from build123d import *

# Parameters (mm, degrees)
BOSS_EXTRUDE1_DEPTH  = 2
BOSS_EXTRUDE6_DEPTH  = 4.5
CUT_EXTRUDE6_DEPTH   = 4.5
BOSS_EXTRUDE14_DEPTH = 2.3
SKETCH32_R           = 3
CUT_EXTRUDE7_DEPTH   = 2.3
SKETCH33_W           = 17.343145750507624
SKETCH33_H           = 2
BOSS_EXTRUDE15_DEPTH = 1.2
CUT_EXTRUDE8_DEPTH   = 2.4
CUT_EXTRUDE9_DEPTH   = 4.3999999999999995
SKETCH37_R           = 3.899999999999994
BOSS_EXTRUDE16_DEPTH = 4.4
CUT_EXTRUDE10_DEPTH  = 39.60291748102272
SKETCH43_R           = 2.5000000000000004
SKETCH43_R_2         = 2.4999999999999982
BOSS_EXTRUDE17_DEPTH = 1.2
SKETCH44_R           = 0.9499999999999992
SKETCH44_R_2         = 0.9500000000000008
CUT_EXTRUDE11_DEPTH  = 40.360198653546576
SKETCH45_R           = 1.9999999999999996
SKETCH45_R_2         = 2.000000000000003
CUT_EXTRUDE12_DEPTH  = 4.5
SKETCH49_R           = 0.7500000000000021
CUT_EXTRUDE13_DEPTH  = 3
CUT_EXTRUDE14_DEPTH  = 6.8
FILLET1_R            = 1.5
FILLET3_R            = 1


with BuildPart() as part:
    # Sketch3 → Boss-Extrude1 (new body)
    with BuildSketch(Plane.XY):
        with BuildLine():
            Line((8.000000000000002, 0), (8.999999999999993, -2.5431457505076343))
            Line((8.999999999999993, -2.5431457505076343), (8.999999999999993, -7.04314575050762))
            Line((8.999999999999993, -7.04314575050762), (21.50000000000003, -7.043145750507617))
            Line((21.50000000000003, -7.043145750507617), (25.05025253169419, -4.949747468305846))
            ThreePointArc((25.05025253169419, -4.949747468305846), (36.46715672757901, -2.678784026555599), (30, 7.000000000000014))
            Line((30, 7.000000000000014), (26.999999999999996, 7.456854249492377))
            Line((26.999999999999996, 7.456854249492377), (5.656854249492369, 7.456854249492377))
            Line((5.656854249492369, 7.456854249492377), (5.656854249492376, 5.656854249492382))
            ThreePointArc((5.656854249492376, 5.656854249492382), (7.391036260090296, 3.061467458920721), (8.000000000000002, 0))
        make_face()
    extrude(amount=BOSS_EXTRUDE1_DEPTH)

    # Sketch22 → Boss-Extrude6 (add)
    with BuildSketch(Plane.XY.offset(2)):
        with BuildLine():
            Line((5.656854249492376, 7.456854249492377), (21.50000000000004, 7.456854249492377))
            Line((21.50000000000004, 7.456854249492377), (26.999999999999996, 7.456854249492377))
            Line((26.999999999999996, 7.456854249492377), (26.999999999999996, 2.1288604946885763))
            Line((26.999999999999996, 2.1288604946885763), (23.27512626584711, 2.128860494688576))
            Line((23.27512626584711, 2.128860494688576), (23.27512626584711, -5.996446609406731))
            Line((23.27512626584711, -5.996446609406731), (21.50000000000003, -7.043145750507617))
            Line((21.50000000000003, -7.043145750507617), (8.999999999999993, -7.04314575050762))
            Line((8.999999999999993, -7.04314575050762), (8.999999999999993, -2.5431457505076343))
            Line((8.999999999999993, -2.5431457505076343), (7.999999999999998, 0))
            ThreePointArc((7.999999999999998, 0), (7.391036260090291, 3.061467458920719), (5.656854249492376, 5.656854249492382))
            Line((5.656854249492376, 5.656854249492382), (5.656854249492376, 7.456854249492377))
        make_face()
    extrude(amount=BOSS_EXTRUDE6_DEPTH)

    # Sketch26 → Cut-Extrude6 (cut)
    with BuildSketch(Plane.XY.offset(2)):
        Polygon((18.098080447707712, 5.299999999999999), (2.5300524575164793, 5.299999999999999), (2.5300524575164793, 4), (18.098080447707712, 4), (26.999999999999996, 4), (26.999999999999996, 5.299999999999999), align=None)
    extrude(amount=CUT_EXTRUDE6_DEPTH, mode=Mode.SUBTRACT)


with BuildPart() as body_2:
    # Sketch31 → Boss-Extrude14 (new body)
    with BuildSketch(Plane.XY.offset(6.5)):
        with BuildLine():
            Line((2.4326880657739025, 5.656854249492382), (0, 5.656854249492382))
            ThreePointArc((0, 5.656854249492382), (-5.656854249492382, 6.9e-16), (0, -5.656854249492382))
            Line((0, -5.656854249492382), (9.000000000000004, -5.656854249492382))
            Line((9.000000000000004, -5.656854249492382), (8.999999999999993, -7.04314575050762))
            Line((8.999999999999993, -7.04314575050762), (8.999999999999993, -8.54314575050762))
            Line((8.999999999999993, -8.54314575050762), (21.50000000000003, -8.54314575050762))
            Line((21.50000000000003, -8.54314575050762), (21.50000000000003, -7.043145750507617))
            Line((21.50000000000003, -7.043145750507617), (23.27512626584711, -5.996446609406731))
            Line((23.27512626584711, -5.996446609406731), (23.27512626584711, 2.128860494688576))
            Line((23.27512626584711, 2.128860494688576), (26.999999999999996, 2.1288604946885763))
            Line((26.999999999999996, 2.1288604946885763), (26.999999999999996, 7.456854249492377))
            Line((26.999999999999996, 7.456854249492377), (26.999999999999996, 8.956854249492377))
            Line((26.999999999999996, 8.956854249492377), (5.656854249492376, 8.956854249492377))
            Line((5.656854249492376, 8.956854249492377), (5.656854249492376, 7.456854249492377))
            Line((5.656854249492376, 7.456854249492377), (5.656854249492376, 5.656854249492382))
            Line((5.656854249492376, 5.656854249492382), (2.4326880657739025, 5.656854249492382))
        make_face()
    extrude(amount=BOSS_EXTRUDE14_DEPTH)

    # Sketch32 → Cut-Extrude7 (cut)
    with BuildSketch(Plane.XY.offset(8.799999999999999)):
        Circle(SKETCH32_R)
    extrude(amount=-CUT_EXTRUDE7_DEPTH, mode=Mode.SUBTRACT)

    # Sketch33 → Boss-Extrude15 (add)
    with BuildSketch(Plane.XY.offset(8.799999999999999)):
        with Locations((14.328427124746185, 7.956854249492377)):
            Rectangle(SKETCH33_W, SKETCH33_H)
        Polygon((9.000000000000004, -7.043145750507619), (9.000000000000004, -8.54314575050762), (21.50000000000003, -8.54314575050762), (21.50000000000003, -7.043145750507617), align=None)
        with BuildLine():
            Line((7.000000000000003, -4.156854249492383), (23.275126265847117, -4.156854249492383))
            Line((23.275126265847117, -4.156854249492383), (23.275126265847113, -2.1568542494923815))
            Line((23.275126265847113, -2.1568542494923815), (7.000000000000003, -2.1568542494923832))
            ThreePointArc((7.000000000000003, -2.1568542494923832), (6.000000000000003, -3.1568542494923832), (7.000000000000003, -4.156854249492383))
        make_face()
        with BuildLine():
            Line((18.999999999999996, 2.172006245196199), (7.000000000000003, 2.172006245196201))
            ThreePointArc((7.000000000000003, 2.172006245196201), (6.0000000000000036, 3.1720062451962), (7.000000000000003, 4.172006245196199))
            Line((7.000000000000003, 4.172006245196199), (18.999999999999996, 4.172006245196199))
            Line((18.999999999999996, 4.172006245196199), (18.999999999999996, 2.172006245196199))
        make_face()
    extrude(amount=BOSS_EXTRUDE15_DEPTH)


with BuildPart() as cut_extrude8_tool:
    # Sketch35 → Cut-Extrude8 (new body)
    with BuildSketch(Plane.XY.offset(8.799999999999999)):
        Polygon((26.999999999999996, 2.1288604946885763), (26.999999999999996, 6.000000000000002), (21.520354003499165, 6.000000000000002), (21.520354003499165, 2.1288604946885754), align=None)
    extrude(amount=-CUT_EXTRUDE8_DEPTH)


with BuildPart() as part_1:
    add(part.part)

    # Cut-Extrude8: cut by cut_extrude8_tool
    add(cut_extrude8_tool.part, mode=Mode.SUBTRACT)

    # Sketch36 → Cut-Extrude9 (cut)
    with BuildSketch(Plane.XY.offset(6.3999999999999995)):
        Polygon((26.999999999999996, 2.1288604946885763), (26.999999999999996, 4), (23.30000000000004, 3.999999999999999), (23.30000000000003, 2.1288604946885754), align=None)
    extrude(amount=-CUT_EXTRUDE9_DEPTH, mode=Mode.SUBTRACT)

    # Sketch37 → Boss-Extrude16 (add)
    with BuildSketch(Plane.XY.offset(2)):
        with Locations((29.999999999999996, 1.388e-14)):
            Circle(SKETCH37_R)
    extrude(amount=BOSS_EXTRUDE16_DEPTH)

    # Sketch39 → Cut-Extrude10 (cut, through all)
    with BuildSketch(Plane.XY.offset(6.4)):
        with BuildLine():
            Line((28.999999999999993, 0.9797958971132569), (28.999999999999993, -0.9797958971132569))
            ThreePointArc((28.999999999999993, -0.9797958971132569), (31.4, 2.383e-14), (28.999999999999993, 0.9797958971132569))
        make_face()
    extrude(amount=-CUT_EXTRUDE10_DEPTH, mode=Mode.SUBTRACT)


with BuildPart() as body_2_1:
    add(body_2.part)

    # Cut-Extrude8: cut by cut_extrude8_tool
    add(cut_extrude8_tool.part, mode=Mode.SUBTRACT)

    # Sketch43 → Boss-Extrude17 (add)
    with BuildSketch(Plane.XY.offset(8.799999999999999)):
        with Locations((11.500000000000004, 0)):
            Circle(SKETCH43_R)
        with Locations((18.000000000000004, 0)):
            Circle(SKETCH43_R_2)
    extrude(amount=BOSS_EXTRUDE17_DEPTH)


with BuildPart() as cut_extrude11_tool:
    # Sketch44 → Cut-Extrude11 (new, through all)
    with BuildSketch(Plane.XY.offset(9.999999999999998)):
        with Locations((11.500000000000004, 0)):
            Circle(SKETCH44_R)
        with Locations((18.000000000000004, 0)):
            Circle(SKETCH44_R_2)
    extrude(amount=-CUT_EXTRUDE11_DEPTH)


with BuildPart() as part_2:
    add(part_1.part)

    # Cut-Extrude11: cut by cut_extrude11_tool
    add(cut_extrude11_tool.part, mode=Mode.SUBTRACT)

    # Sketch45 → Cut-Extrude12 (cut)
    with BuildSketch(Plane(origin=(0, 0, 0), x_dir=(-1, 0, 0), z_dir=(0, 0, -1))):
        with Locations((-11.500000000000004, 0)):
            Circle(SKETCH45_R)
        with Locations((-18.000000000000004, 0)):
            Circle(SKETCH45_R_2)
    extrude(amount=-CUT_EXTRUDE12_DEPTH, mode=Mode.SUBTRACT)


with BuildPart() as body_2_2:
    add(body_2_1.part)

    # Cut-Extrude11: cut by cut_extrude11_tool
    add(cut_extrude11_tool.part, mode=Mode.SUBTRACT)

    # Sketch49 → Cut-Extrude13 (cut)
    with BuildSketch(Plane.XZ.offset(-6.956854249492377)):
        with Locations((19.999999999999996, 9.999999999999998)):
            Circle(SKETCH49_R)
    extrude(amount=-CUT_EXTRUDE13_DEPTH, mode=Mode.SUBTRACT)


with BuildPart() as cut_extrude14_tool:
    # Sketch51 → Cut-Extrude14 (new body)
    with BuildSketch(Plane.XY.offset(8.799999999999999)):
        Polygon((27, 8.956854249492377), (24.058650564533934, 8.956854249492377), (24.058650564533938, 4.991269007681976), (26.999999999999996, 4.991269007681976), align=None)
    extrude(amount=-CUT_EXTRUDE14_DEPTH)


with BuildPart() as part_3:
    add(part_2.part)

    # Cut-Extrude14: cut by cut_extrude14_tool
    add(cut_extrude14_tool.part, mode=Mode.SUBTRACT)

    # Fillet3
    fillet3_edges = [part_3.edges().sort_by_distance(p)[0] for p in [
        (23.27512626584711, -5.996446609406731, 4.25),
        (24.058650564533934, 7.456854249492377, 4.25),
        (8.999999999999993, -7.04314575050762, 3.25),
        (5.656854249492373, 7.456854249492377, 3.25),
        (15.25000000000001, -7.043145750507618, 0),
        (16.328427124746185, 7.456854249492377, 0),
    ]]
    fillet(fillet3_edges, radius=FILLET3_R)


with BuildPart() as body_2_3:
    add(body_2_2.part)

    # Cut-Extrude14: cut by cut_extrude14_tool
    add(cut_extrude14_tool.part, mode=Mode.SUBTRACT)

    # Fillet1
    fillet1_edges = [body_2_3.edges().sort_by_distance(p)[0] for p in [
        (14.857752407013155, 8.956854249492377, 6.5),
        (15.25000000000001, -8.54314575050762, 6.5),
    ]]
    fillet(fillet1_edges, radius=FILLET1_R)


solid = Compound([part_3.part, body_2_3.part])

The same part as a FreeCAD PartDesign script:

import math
import FreeCAD as App
import Part
import Sketcher

V = App.Vector


def edges_at(feature, points):
    """Names of the edges that pass closest to the given points."""
    edges = feature.Shape.Edges
    near = lambda p: min(range(len(edges)), key=lambda i: edges[i].distToShape(Part.Vertex(*p))[0])
    return sorted({f"Edge{near(p) + 1}" for p in points})

doc = App.newDocument("Part")
body = doc.addObject("PartDesign::Body", "Body")

sketch1 = doc.addObject("Sketcher::SketchObject", "Sketch")
body.addObject(sketch1)
sketch1.AttachmentSupport = (doc.XY_Plane, [""])
sketch1.MapMode = "FlatFace"
sketch1.addGeometry(Part.LineSegment(V(8, 0, 0), V(9, -2.5, 0)), False)
sketch1.addGeometry(Part.LineSegment(V(9, -2.5, 0), V(9, -7, 0)), False)
sketch1.addGeometry(Part.LineSegment(V(9, -7, 0), V(21.5, -7, 0)), False)
sketch1.addGeometry(Part.LineSegment(V(21.5, -7, 0), V(25.1, -4.9, 0)), False)
sketch1.addGeometry(Part.ArcOfCircle(Part.Circle(V(30, 0, 0), V(0, 0, 1), 7), math.radians(-135), math.radians(90)), False)
sketch1.addGeometry(Part.LineSegment(V(30, 7, 0), V(27, 7.5, 0)), False)
sketch1.addGeometry(Part.LineSegment(V(27, 7.5, 0), V(5.7, 7.5, 0)), False)
sketch1.addGeometry(Part.LineSegment(V(5.7, 7.5, 0), V(5.7, 5.7, 0)), False)
sketch1.addGeometry(Part.ArcOfCircle(Part.Circle(V(0, 0, 0), V(0, 0, 1), 8), math.radians(0), math.radians(45)), False)
sketch1.addConstraint(Sketcher.Constraint("Coincident", 0, 2, 1, 1))
sketch1.addConstraint(Sketcher.Constraint("Coincident", 1, 2, 2, 1))
sketch1.addConstraint(Sketcher.Constraint("Coincident", 2, 2, 3, 1))
sketch1.addConstraint(Sketcher.Constraint("Coincident", 3, 2, 4, 1))
sketch1.addConstraint(Sketcher.Constraint("Coincident", 4, 2, 5, 1))
sketch1.addConstraint(Sketcher.Constraint("Coincident", 5, 2, 6, 1))
sketch1.addConstraint(Sketcher.Constraint("Coincident", 6, 2, 7, 1))
sketch1.addConstraint(Sketcher.Constraint("Coincident", 7, 2, 8, 2))
sketch1.addConstraint(Sketcher.Constraint("Coincident", 8, 1, 0, 1))
sketch1.addConstraint(Sketcher.Constraint("Vertical", 1))
sketch1.addConstraint(Sketcher.Constraint("Horizontal", 2))
sketch1.addConstraint(Sketcher.Constraint("Horizontal", 6))
sketch1.addConstraint(Sketcher.Constraint("Vertical", 7))
sketch1.addConstraint(Sketcher.Constraint("Coincident", 8, 3, -1, 1))
sketch1.addConstraint(Sketcher.Constraint("PointOnObject", 4, 3, -1))
sketch1.addConstraint(Sketcher.Constraint("PointOnObject", 8, 1, -1))
sketch1.addConstraint(Sketcher.Constraint("Radius", 4, 7.0))
sketch1.addConstraint(Sketcher.Constraint("Radius", 8, 8.0))
sketch1.addConstraint(Sketcher.Constraint("DistanceX", 2, 1, 2, 2, 12.5))
sketch1.addConstraint(Sketcher.Constraint("DistanceY", 1, 2, 1, 1, 4.5))
sketch1.addConstraint(Sketcher.Constraint("DistanceY", 7, 2, 7, 1, 1.8))
sketch1.addConstraint(Sketcher.Constraint("DistanceX", -1, 1, 4, 3, 30.0))
sketch1.addConstraint(Sketcher.Constraint("DistanceX", -1, 1, 0, 2, 9.0))
sketch1.addConstraint(Sketcher.Constraint("DistanceX", -1, 1, 4, 2, 30.0))
sketch1.addConstraint(Sketcher.Constraint("DistanceX", -1, 1, 5, 2, 27.0))
sketch1.addConstraint(Sketcher.Constraint("DistanceY", 0, 2, 5, 2, 10.0))
sketch1.addConstraint(Sketcher.Constraint("DistanceY", 2, 2, 3, 2, 2.093398))
sketch1.addConstraint(Sketcher.Constraint("Distance", 0, 2.732689))
pad1 = doc.addObject("PartDesign::Pad", "Pad")
body.addObject(pad1)
pad1.Profile = sketch1
pad1.Length = 2

sketch2 = doc.addObject("Sketcher::SketchObject", "Sketch001")
body.addObject(sketch2)
sketch2.AttachmentSupport = (doc.XY_Plane, [""])
sketch2.MapMode = "FlatFace"
sketch2.AttachmentOffset = App.Placement(V(0, 0, 2), App.Rotation())
sketch2.addGeometry(Part.LineSegment(V(27, 7.5, 0), V(5.7, 7.5, 0)), False)
sketch2.addGeometry(Part.LineSegment(V(5.7, 7.5, 0), V(5.7, 5.7, 0)), False)
sketch2.addGeometry(Part.ArcOfCircle(Part.Circle(V(0, 0, 0), V(0, 0, 1), 8), math.radians(0), math.radians(45)), False)
sketch2.addGeometry(Part.LineSegment(V(8, 0, 0), V(9, -2.5, 0)), False)
sketch2.addGeometry(Part.LineSegment(V(9, -2.5, 0), V(9, -7, 0)), False)
sketch2.addGeometry(Part.LineSegment(V(9, -7, 0), V(21.5, -7, 0)), False)
sketch2.addGeometry(Part.LineSegment(V(21.5, -7, 0), V(23.3, -6, 0)), False)
sketch2.addGeometry(Part.LineSegment(V(23.3, -6, 0), V(23.3, 2.1, 0)), False)
sketch2.addGeometry(Part.LineSegment(V(23.3, 2.1, 0), V(27, 2.1, 0)), False)
sketch2.addGeometry(Part.LineSegment(V(27, 2.1, 0), V(27, 7.5, 0)), False)
sketch2.addConstraint(Sketcher.Constraint("Coincident", 0, 2, 1, 1))
sketch2.addConstraint(Sketcher.Constraint("Coincident", 1, 2, 2, 2))
sketch2.addConstraint(Sketcher.Constraint("Coincident", 2, 1, 3, 1))
sketch2.addConstraint(Sketcher.Constraint("Coincident", 3, 2, 4, 1))
sketch2.addConstraint(Sketcher.Constraint("Coincident", 4, 2, 5, 1))
sketch2.addConstraint(Sketcher.Constraint("Coincident", 5, 2, 6, 1))
sketch2.addConstraint(Sketcher.Constraint("Coincident", 6, 2, 7, 1))
sketch2.addConstraint(Sketcher.Constraint("Coincident", 7, 2, 8, 1))
sketch2.addConstraint(Sketcher.Constraint("Coincident", 8, 2, 9, 1))
sketch2.addConstraint(Sketcher.Constraint("Coincident", 9, 2, 0, 1))
sketch2.addConstraint(Sketcher.Constraint("Horizontal", 0))
sketch2.addConstraint(Sketcher.Constraint("Vertical", 1))
sketch2.addConstraint(Sketcher.Constraint("Vertical", 4))
sketch2.addConstraint(Sketcher.Constraint("Horizontal", 5))
sketch2.addConstraint(Sketcher.Constraint("Vertical", 7))
sketch2.addConstraint(Sketcher.Constraint("Horizontal", 8))
sketch2.addConstraint(Sketcher.Constraint("Vertical", 9))
sketch2.addConstraint(Sketcher.Constraint("Coincident", 2, 3, -1, 1))
sketch2.addConstraint(Sketcher.Constraint("PointOnObject", 2, 1, -1))
sketch2.addConstraint(Sketcher.Constraint("Radius", 2, 8.0))
sketch2.addConstraint(Sketcher.Constraint("DistanceX", 5, 1, 5, 2, 12.5))
sketch2.addConstraint(Sketcher.Constraint("DistanceY", 1, 2, 1, 1, 1.8))
sketch2.addConstraint(Sketcher.Constraint("DistanceY", 4, 2, 4, 1, 4.5))
sketch2.addConstraint(Sketcher.Constraint("DistanceX", -1, 1, 3, 2, 9.0))
sketch2.addConstraint(Sketcher.Constraint("DistanceX", -1, 1, 8, 2, 27.0))
sketch2.addConstraint(Sketcher.Constraint("DistanceY", 3, 2, 0, 2, 10.0))
sketch2.addConstraint(Sketcher.Constraint("DistanceY", 5, 2, 6, 2, 1.046699))
sketch2.addConstraint(Sketcher.Constraint("Distance", 3, 2.732689))
sketch2.addConstraint(Sketcher.Constraint("Distance", 6, 2.060741))
sketch2.addConstraint(Sketcher.Constraint("DistanceY", 7, 1, 7, 2, 8.125307))
pad2 = doc.addObject("PartDesign::Pad", "Pad001")
body.addObject(pad2)
pad2.Profile = sketch2
pad2.Length = 4.5

sketch3 = doc.addObject("Sketcher::SketchObject", "Sketch002")
body.addObject(sketch3)
sketch3.AttachmentSupport = (doc.XY_Plane, [""])
sketch3.MapMode = "FlatFace"
sketch3.AttachmentOffset = App.Placement(V(0, 0, 2), App.Rotation())
sketch3.addGeometry(Part.LineSegment(V(2.5, 5.3, 0), V(2.5, 4, 0)), False)
sketch3.addGeometry(Part.LineSegment(V(2.5, 4, 0), V(27, 4, 0)), False)
sketch3.addGeometry(Part.LineSegment(V(27, 4, 0), V(27, 5.3, 0)), False)
sketch3.addGeometry(Part.LineSegment(V(27, 5.3, 0), V(2.5, 5.3, 0)), False)
sketch3.addConstraint(Sketcher.Constraint("Coincident", 0, 2, 1, 1))
sketch3.addConstraint(Sketcher.Constraint("Coincident", 1, 2, 2, 1))
sketch3.addConstraint(Sketcher.Constraint("Coincident", 2, 2, 3, 1))
sketch3.addConstraint(Sketcher.Constraint("Coincident", 3, 2, 0, 1))
sketch3.addConstraint(Sketcher.Constraint("Vertical", 0))
sketch3.addConstraint(Sketcher.Constraint("Horizontal", 1))
sketch3.addConstraint(Sketcher.Constraint("Vertical", 2))
sketch3.addConstraint(Sketcher.Constraint("Horizontal", 3))
sketch3.addConstraint(Sketcher.Constraint("DistanceY", 0, 2, 0, 1, 1.3))
sketch3.addConstraint(Sketcher.Constraint("DistanceY", -1, 1, 0, 2, 4.0))
sketch3.addConstraint(Sketcher.Constraint("DistanceX", -1, 1, 1, 2, 27.0))
sketch3.addConstraint(Sketcher.Constraint("DistanceX", 1, 1, 1, 2, 24.469948))
pocket1 = doc.addObject("PartDesign::Pocket", "Pocket")
body.addObject(pocket1)
pocket1.Profile = sketch3
pocket1.Length = 4.5
pocket1.Reversed = True
body2 = doc.addObject("PartDesign::Body", "Body001")

sketch4 = doc.addObject("Sketcher::SketchObject", "Sketch003")
body2.addObject(sketch4)
sketch4.AttachmentSupport = (doc.getObject("XY_Plane001"), [""])
sketch4.MapMode = "FlatFace"
sketch4.AttachmentOffset = App.Placement(V(0, 0, 6.5), App.Rotation())
sketch4.addGeometry(Part.ArcOfCircle(Part.Circle(V(0, 0, 0), V(0, 0, 1), 5.7), math.radians(90), math.radians(270)), False)
sketch4.addGeometry(Part.LineSegment(V(0, -5.7, 0), V(9, -5.7, 0)), False)
sketch4.addGeometry(Part.LineSegment(V(9, -5.7, 0), V(9, -8.5, 0)), False)
sketch4.addGeometry(Part.LineSegment(V(9, -8.5, 0), V(21.5, -8.5, 0)), False)
sketch4.addGeometry(Part.LineSegment(V(21.5, -8.5, 0), V(21.5, -7, 0)), False)
sketch4.addGeometry(Part.LineSegment(V(21.5, -7, 0), V(23.3, -6, 0)), False)
sketch4.addGeometry(Part.LineSegment(V(23.3, -6, 0), V(23.3, 2.1, 0)), False)
sketch4.addGeometry(Part.LineSegment(V(23.3, 2.1, 0), V(27, 2.1, 0)), False)
sketch4.addGeometry(Part.LineSegment(V(27, 2.1, 0), V(27, 9, 0)), False)
sketch4.addGeometry(Part.LineSegment(V(27, 9, 0), V(5.7, 9, 0)), False)
sketch4.addGeometry(Part.LineSegment(V(5.7, 9, 0), V(5.7, 5.7, 0)), False)
sketch4.addGeometry(Part.LineSegment(V(5.7, 5.7, 0), V(0, 5.7, 0)), False)
sketch4.addConstraint(Sketcher.Constraint("Tangent", 0, 2, 1, 1))
sketch4.addConstraint(Sketcher.Constraint("Coincident", 1, 2, 2, 1))
sketch4.addConstraint(Sketcher.Constraint("Coincident", 2, 2, 3, 1))
sketch4.addConstraint(Sketcher.Constraint("Coincident", 3, 2, 4, 1))
sketch4.addConstraint(Sketcher.Constraint("Coincident", 4, 2, 5, 1))
sketch4.addConstraint(Sketcher.Constraint("Coincident", 5, 2, 6, 1))
sketch4.addConstraint(Sketcher.Constraint("Coincident", 6, 2, 7, 1))
sketch4.addConstraint(Sketcher.Constraint("Coincident", 7, 2, 8, 1))
sketch4.addConstraint(Sketcher.Constraint("Coincident", 8, 2, 9, 1))
sketch4.addConstraint(Sketcher.Constraint("Coincident", 9, 2, 10, 1))
sketch4.addConstraint(Sketcher.Constraint("Coincident", 10, 2, 11, 1))
sketch4.addConstraint(Sketcher.Constraint("Tangent", 11, 2, 0, 1))
sketch4.addConstraint(Sketcher.Constraint("Horizontal", 1))
sketch4.addConstraint(Sketcher.Constraint("Vertical", 2))
sketch4.addConstraint(Sketcher.Constraint("Horizontal", 3))
sketch4.addConstraint(Sketcher.Constraint("Vertical", 4))
sketch4.addConstraint(Sketcher.Constraint("Vertical", 6))
sketch4.addConstraint(Sketcher.Constraint("Horizontal", 7))
sketch4.addConstraint(Sketcher.Constraint("Vertical", 8))
sketch4.addConstraint(Sketcher.Constraint("Horizontal", 9))
sketch4.addConstraint(Sketcher.Constraint("Vertical", 10))
sketch4.addConstraint(Sketcher.Constraint("Horizontal", 11))
sketch4.addConstraint(Sketcher.Constraint("Coincident", 0, 3, -1, 1))
sketch4.addConstraint(Sketcher.Constraint("DistanceX", 1, 1, 1, 2, 9.0))
sketch4.addConstraint(Sketcher.Constraint("DistanceX", 3, 1, 3, 2, 12.5))
sketch4.addConstraint(Sketcher.Constraint("DistanceY", 4, 1, 4, 2, 1.5))
sketch4.addConstraint(Sketcher.Constraint("DistanceY", 10, 2, 10, 1, 3.3))
sketch4.addConstraint(Sketcher.Constraint("DistanceX", -1, 1, 7, 2, 27.0))
sketch4.addConstraint(Sketcher.Constraint("DistanceY", 4, 2, 8, 2, 16.0))
sketch4.addConstraint(Sketcher.Constraint("Radius", 0, 5.656854))
sketch4.addConstraint(Sketcher.Constraint("DistanceY", 4, 2, 5, 2, 1.046699))
sketch4.addConstraint(Sketcher.Constraint("Distance", 5, 2.060741))
sketch4.addConstraint(Sketcher.Constraint("DistanceX", 9, 2, 9, 1, 21.343146))
sketch4.addConstraint(Sketcher.Constraint("DistanceY", 6, 1, 6, 2, 8.125307))
pad3 = doc.addObject("PartDesign::Pad", "Pad002")
body2.addObject(pad3)
pad3.Profile = sketch4
pad3.Length = 2.3

sketch5 = doc.addObject("Sketcher::SketchObject", "Sketch004")
body2.addObject(sketch5)
sketch5.AttachmentSupport = (doc.getObject("XY_Plane001"), [""])
sketch5.MapMode = "FlatFace"
sketch5.AttachmentOffset = App.Placement(V(0, 0, 8.8), App.Rotation())
sketch5.addGeometry(Part.Circle(V(0, 0, 0), V(0, 0, 1), 3), False)
sketch5.addConstraint(Sketcher.Constraint("Coincident", 0, 3, -1, 1))
sketch5.addConstraint(Sketcher.Constraint("Diameter", 0, 6.0))
pocket2 = doc.addObject("PartDesign::Pocket", "Pocket001")
body2.addObject(pocket2)
pocket2.Profile = sketch5
pocket2.Length = 2.3

sketch6 = doc.addObject("Sketcher::SketchObject", "Sketch005")
body2.addObject(sketch6)
sketch6.AttachmentSupport = (doc.getObject("XY_Plane001"), [""])
sketch6.MapMode = "FlatFace"
sketch6.AttachmentOffset = App.Placement(V(0, 0, 8.8), App.Rotation())
sketch6.addGeometry(Part.LineSegment(V(5.7, 9, 0), V(5.7, 7, 0)), False)
sketch6.addGeometry(Part.LineSegment(V(5.7, 7, 0), V(23, 7, 0)), False)
sketch6.addGeometry(Part.LineSegment(V(23, 7, 0), V(23, 9, 0)), False)
sketch6.addGeometry(Part.LineSegment(V(23, 9, 0), V(5.7, 9, 0)), False)
sketch6.addGeometry(Part.LineSegment(V(9, -7, 0), V(9, -8.5, 0)), False)
sketch6.addGeometry(Part.LineSegment(V(9, -8.5, 0), V(21.5, -8.5, 0)), False)
sketch6.addGeometry(Part.LineSegment(V(21.5, -8.5, 0), V(21.5, -7, 0)), False)
sketch6.addGeometry(Part.LineSegment(V(21.5, -7, 0), V(9, -7, 0)), False)
sketch6.addGeometry(Part.LineSegment(V(7, -4.2, 0), V(23.3, -4.2, 0)), False)
sketch6.addGeometry(Part.LineSegment(V(23.3, -4.2, 0), V(23.3, -2.2, 0)), False)
sketch6.addGeometry(Part.LineSegment(V(23.3, -2.2, 0), V(7, -2.2, 0)), False)
sketch6.addGeometry(Part.ArcOfCircle(Part.Circle(V(7, -3.2, 0), V(0, 0, 1), 1), math.radians(90), math.radians(270)), False)
sketch6.addGeometry(Part.LineSegment(V(7, 2.2, 0), V(19, 2.2, 0)), False)
sketch6.addGeometry(Part.LineSegment(V(19, 2.2, 0), V(19, 4.2, 0)), False)
sketch6.addGeometry(Part.LineSegment(V(19, 4.2, 0), V(7, 4.2, 0)), False)
sketch6.addGeometry(Part.ArcOfCircle(Part.Circle(V(7, 3.2, 0), V(0, 0, 1), 1), math.radians(90), math.radians(270)), False)
sketch6.addConstraint(Sketcher.Constraint("Coincident", 0, 2, 1, 1))
sketch6.addConstraint(Sketcher.Constraint("Coincident", 1, 2, 2, 1))
sketch6.addConstraint(Sketcher.Constraint("Coincident", 2, 2, 3, 1))
sketch6.addConstraint(Sketcher.Constraint("Coincident", 3, 2, 0, 1))
sketch6.addConstraint(Sketcher.Constraint("Coincident", 4, 2, 5, 1))
sketch6.addConstraint(Sketcher.Constraint("Coincident", 5, 2, 6, 1))
sketch6.addConstraint(Sketcher.Constraint("Coincident", 6, 2, 7, 1))
sketch6.addConstraint(Sketcher.Constraint("Coincident", 7, 2, 4, 1))
sketch6.addConstraint(Sketcher.Constraint("Coincident", 8, 2, 9, 1))
sketch6.addConstraint(Sketcher.Constraint("Coincident", 9, 2, 10, 1))
sketch6.addConstraint(Sketcher.Constraint("Tangent", 10, 2, 11, 1))
sketch6.addConstraint(Sketcher.Constraint("Tangent", 11, 2, 8, 1))
sketch6.addConstraint(Sketcher.Constraint("Coincident", 12, 2, 13, 1))
sketch6.addConstraint(Sketcher.Constraint("Coincident", 13, 2, 14, 1))
sketch6.addConstraint(Sketcher.Constraint("Tangent", 14, 2, 15, 1))
sketch6.addConstraint(Sketcher.Constraint("Tangent", 15, 2, 12, 1))
sketch6.addConstraint(Sketcher.Constraint("Vertical", 0))
sketch6.addConstraint(Sketcher.Constraint("Horizontal", 1))
sketch6.addConstraint(Sketcher.Constraint("Vertical", 2))
sketch6.addConstraint(Sketcher.Constraint("Horizontal", 3))
sketch6.addConstraint(Sketcher.Constraint("Vertical", 4))
sketch6.addConstraint(Sketcher.Constraint("Horizontal", 5))
sketch6.addConstraint(Sketcher.Constraint("Vertical", 6))
sketch6.addConstraint(Sketcher.Constraint("Horizontal", 7))
sketch6.addConstraint(Sketcher.Constraint("Horizontal", 8))
sketch6.addConstraint(Sketcher.Constraint("Vertical", 9))
sketch6.addConstraint(Sketcher.Constraint("Horizontal", 10))
sketch6.addConstraint(Sketcher.Constraint("Horizontal", 12))
sketch6.addConstraint(Sketcher.Constraint("Vertical", 13))
sketch6.addConstraint(Sketcher.Constraint("Horizontal", 14))
sketch6.addConstraint(Sketcher.Constraint("Equal", 11, 15))
sketch6.addConstraint(Sketcher.Constraint("Vertical", 11, 3, 15, 3))
sketch6.addConstraint(Sketcher.Constraint("Equal", 2, 9))
sketch6.addConstraint(Sketcher.Constraint("Radius", 11, 1.0))
sketch6.addConstraint(Sketcher.Constraint("DistanceX", 12, 1, 12, 2, 12.0))
sketch6.addConstraint(Sketcher.Constraint("DistanceX", 5, 1, 5, 2, 12.5))
sketch6.addConstraint(Sketcher.Constraint("DistanceY", 4, 2, 4, 1, 1.5))
sketch6.addConstraint(Sketcher.Constraint("DistanceX", -1, 1, 11, 3, 7.0))
sketch6.addConstraint(Sketcher.Constraint("DistanceX", -1, 1, 1, 2, 23.0))
sketch6.addConstraint(Sketcher.Constraint("DistanceX", -1, 1, 4, 2, 9.0))
sketch6.addConstraint(Sketcher.Constraint("DistanceY", 6, 2, 1, 2, 14.0))
sketch6.addConstraint(Sketcher.Constraint("DistanceX", 1, 1, 1, 2, 17.343146))
sketch6.addConstraint(Sketcher.Constraint("DistanceX", 8, 1, 8, 2, 16.275126))
sketch6.addConstraint(Sketcher.Constraint("DistanceY", 11, 3, 15, 3, 6.32886))
sketch6.addConstraint(Sketcher.Constraint("DistanceY", 15, 3, 0, 2, 3.784848))
sketch6.addConstraint(Sketcher.Constraint("DistanceY", 11, 3, -1, 1, 3.156854))
pad4 = doc.addObject("PartDesign::Pad", "Pad003")
body2.addObject(pad4)
pad4.Profile = sketch6
pad4.Length = 1.2
body3 = doc.addObject("PartDesign::Body", "Body002")

sketch7 = doc.addObject("Sketcher::SketchObject", "Sketch006")
body3.addObject(sketch7)
sketch7.AttachmentSupport = (doc.getObject("XY_Plane002"), [""])
sketch7.MapMode = "FlatFace"
sketch7.AttachmentOffset = App.Placement(V(0, 0, 8.8), App.Rotation())
sketch7.addGeometry(Part.LineSegment(V(27, 2.1, 0), V(27, 6, 0)), False)
sketch7.addGeometry(Part.LineSegment(V(27, 6, 0), V(21.5, 6, 0)), False)
sketch7.addGeometry(Part.LineSegment(V(21.5, 6, 0), V(21.5, 2.1, 0)), False)
sketch7.addGeometry(Part.LineSegment(V(21.5, 2.1, 0), V(27, 2.1, 0)), False)
sketch7.addConstraint(Sketcher.Constraint("Coincident", 0, 2, 1, 1))
sketch7.addConstraint(Sketcher.Constraint("Coincident", 1, 2, 2, 1))
sketch7.addConstraint(Sketcher.Constraint("Coincident", 2, 2, 3, 1))
sketch7.addConstraint(Sketcher.Constraint("Coincident", 3, 2, 0, 1))
sketch7.addConstraint(Sketcher.Constraint("Vertical", 0))
sketch7.addConstraint(Sketcher.Constraint("Horizontal", 1))
sketch7.addConstraint(Sketcher.Constraint("Vertical", 2))
sketch7.addConstraint(Sketcher.Constraint("Horizontal", 3))
sketch7.addConstraint(Sketcher.Constraint("DistanceX", -1, 1, 0, 2, 27.0))
sketch7.addConstraint(Sketcher.Constraint("DistanceY", -1, 1, 0, 2, 6.0))
sketch7.addConstraint(Sketcher.Constraint("DistanceY", 0, 1, 0, 2, 3.87114))
sketch7.addConstraint(Sketcher.Constraint("DistanceX", 1, 2, 1, 1, 5.479646))
pad5 = doc.addObject("PartDesign::Pad", "Pad004")
body3.addObject(pad5)
pad5.Profile = sketch7
pad5.Length = 2.4
pad5.Reversed = True
doc.recompute()

body4 = doc.addObject("PartDesign::Body", "Body003")
body4.BaseFeature = body3
boolean = doc.addObject("PartDesign::Boolean", "Boolean")
body.addObject(boolean)
boolean.Type = "Cut"
boolean.addObjects([body4])
doc.recompute()

sketch8 = doc.addObject("Sketcher::SketchObject", "Sketch007")
body.addObject(sketch8)
sketch8.AttachmentSupport = (doc.XY_Plane, [""])
sketch8.MapMode = "FlatFace"
sketch8.AttachmentOffset = App.Placement(V(0, 0, 6.4), App.Rotation())
sketch8.addGeometry(Part.LineSegment(V(27, 2.1, 0), V(27, 4, 0)), False)
sketch8.addGeometry(Part.LineSegment(V(27, 4, 0), V(23.3, 4, 0)), False)
sketch8.addGeometry(Part.LineSegment(V(23.3, 4, 0), V(23.3, 2.1, 0)), False)
sketch8.addGeometry(Part.LineSegment(V(23.3, 2.1, 0), V(27, 2.1, 0)), False)
sketch8.addConstraint(Sketcher.Constraint("Coincident", 0, 2, 1, 1))
sketch8.addConstraint(Sketcher.Constraint("Coincident", 1, 2, 2, 1))
sketch8.addConstraint(Sketcher.Constraint("Coincident", 2, 2, 3, 1))
sketch8.addConstraint(Sketcher.Constraint("Coincident", 3, 2, 0, 1))
sketch8.addConstraint(Sketcher.Constraint("Vertical", 0))
sketch8.addConstraint(Sketcher.Constraint("Horizontal", 1))
sketch8.addConstraint(Sketcher.Constraint("Vertical", 2))
sketch8.addConstraint(Sketcher.Constraint("Horizontal", 3))
sketch8.addConstraint(Sketcher.Constraint("DistanceX", 1, 2, 1, 1, 3.7))
sketch8.addConstraint(Sketcher.Constraint("DistanceX", -1, 1, 0, 2, 27.0))
sketch8.addConstraint(Sketcher.Constraint("DistanceY", -1, 1, 0, 2, 4.0))
sketch8.addConstraint(Sketcher.Constraint("DistanceY", 0, 1, 0, 2, 1.87114))
pocket3 = doc.addObject("PartDesign::Pocket", "Pocket002")
body.addObject(pocket3)
pocket3.Profile = sketch8
pocket3.Length = 4.4

sketch9 = doc.addObject("Sketcher::SketchObject", "Sketch008")
body.addObject(sketch9)
sketch9.AttachmentSupport = (doc.XY_Plane, [""])
sketch9.MapMode = "FlatFace"
sketch9.AttachmentOffset = App.Placement(V(0, 0, 2), App.Rotation())
sketch9.addGeometry(Part.Circle(V(30, 0, 0), V(0, 0, 1), 3.9), False)
sketch9.addConstraint(Sketcher.Constraint("PointOnObject", 0, 3, -1))
sketch9.addConstraint(Sketcher.Constraint("Diameter", 0, 7.8))
sketch9.addConstraint(Sketcher.Constraint("DistanceX", -1, 1, 0, 3, 30.0))
pad6 = doc.addObject("PartDesign::Pad", "Pad005")
body.addObject(pad6)
pad6.Profile = sketch9
pad6.Length = 4.4

sketch10 = doc.addObject("Sketcher::SketchObject", "Sketch009")
body.addObject(sketch10)
sketch10.AttachmentSupport = (doc.XY_Plane, [""])
sketch10.MapMode = "FlatFace"
sketch10.AttachmentOffset = App.Placement(V(0, 0, 6.4), App.Rotation())
sketch10.addGeometry(Part.LineSegment(V(29, 1, 0), V(29, -1, 0)), False)
sketch10.addGeometry(Part.ArcOfCircle(Part.Circle(V(30, 0, 0), V(0, 0, 1), 1.4), math.radians(-136), math.radians(136)), False)
sketch10.addConstraint(Sketcher.Constraint("Coincident", 0, 1, 1, 2))
sketch10.addConstraint(Sketcher.Constraint("Coincident", 1, 1, 0, 2))
sketch10.addConstraint(Sketcher.Constraint("Vertical", 0))
sketch10.addConstraint(Sketcher.Constraint("PointOnObject", 1, 3, -1))
sketch10.addConstraint(Sketcher.Constraint("Radius", 1, 1.4))
sketch10.addConstraint(Sketcher.Constraint("DistanceX", -1, 1, 1, 3, 30.0))
sketch10.addConstraint(Sketcher.Constraint("DistanceX", -1, 1, 0, 1, 29.0))
pocket4 = doc.addObject("PartDesign::Pocket", "Pocket003")
body.addObject(pocket4)
pocket4.Profile = sketch10
pocket4.Type = "ThroughAll"
doc.recompute()

boolean2 = doc.addObject("PartDesign::Boolean", "Boolean001")
body2.addObject(boolean2)
boolean2.Type = "Cut"
boolean2.addObjects([body3])

sketch11 = doc.addObject("Sketcher::SketchObject", "Sketch010")
body2.addObject(sketch11)
sketch11.AttachmentSupport = (doc.getObject("XY_Plane001"), [""])
sketch11.MapMode = "FlatFace"
sketch11.AttachmentOffset = App.Placement(V(0, 0, 8.8), App.Rotation())
sketch11.addGeometry(Part.Circle(V(11.5, 0, 0), V(0, 0, 1), 2.5), False)
sketch11.addGeometry(Part.Circle(V(18, 0, 0), V(0, 0, 1), 2.5), False)
sketch11.addConstraint(Sketcher.Constraint("Equal", 0, 1))
sketch11.addConstraint(Sketcher.Constraint("PointOnObject", 0, 3, -1))
sketch11.addConstraint(Sketcher.Constraint("PointOnObject", 1, 3, -1))
sketch11.addConstraint(Sketcher.Constraint("Diameter", 0, 5.0))
sketch11.addConstraint(Sketcher.Constraint("DistanceX", -1, 1, 1, 3, 18.0))
sketch11.addConstraint(Sketcher.Constraint("DistanceX", -1, 1, 0, 3, 11.5))
pad7 = doc.addObject("PartDesign::Pad", "Pad006")
body2.addObject(pad7)
pad7.Profile = sketch11
pad7.Length = 1.2
body5 = doc.addObject("PartDesign::Body", "Body004")
body5.AllowCompound = True

sketch12 = doc.addObject("Sketcher::SketchObject", "Sketch011")
body5.addObject(sketch12)
sketch12.AttachmentSupport = (doc.getObject("XY_Plane004"), [""])
sketch12.MapMode = "FlatFace"
sketch12.AttachmentOffset = App.Placement(V(0, 0, 10), App.Rotation())
sketch12.addGeometry(Part.Circle(V(11.5, 0, 0), V(0, 0, 1), 0.9), False)
sketch12.addGeometry(Part.Circle(V(18, 0, 0), V(0, 0, 1), 0.9), False)
sketch12.addConstraint(Sketcher.Constraint("Equal", 0, 1))
sketch12.addConstraint(Sketcher.Constraint("PointOnObject", 0, 3, -1))
sketch12.addConstraint(Sketcher.Constraint("PointOnObject", 1, 3, -1))
sketch12.addConstraint(Sketcher.Constraint("Diameter", 0, 1.9))
sketch12.addConstraint(Sketcher.Constraint("DistanceX", -1, 1, 1, 3, 18.0))
sketch12.addConstraint(Sketcher.Constraint("DistanceX", -1, 1, 0, 3, 11.5))
pad8 = doc.addObject("PartDesign::Pad", "Pad007")
body5.addObject(pad8)
pad8.Profile = sketch12
pad8.Length = 40.360199
pad8.Reversed = True
doc.recompute()

body6 = doc.addObject("PartDesign::Body", "Body005")
body6.BaseFeature = body5
boolean3 = doc.addObject("PartDesign::Boolean", "Boolean002")
body.addObject(boolean3)
boolean3.Type = "Cut"
boolean3.addObjects([body6])
doc.recompute()

sketch13 = doc.addObject("Sketcher::SketchObject", "Sketch012")
body.addObject(sketch13)
sketch13.AttachmentSupport = (doc.XY_Plane, [""])
sketch13.MapMode = "FlatFace"
sketch13.addGeometry(Part.Circle(V(11.5, 0, 0), V(0, 0, 1), 2), False)
sketch13.addGeometry(Part.Circle(V(18, 0, 0), V(0, 0, 1), 2), False)
sketch13.addConstraint(Sketcher.Constraint("Equal", 0, 1))
sketch13.addConstraint(Sketcher.Constraint("PointOnObject", 0, 3, -1))
sketch13.addConstraint(Sketcher.Constraint("PointOnObject", 1, 3, -1))
sketch13.addConstraint(Sketcher.Constraint("Diameter", 0, 4.0))
sketch13.addConstraint(Sketcher.Constraint("DistanceX", -1, 1, 1, 3, 18.0))
sketch13.addConstraint(Sketcher.Constraint("DistanceX", -1, 1, 0, 3, 11.5))
pocket5 = doc.addObject("PartDesign::Pocket", "Pocket004")
body.addObject(pocket5)
pocket5.Profile = sketch13
pocket5.Length = 4.5
pocket5.Reversed = True
doc.recompute()

boolean4 = doc.addObject("PartDesign::Boolean", "Boolean003")
body2.addObject(boolean4)
boolean4.Type = "Cut"
boolean4.addObjects([body5])

sketch14 = doc.addObject("Sketcher::SketchObject", "Sketch013")
body2.addObject(sketch14)
sketch14.AttachmentSupport = (doc.getObject("XZ_Plane001"), [""])
sketch14.MapMode = "FlatFace"
sketch14.AttachmentOffset = App.Placement(V(0, 0, -6.956854), App.Rotation())
sketch14.addGeometry(Part.Circle(V(20, 10, 0), V(0, 0, 1), 0.8), False)
sketch14.addConstraint(Sketcher.Constraint("Diameter", 0, 1.5))
sketch14.addConstraint(Sketcher.Constraint("DistanceX", -1, 1, 0, 3, 20.0))
sketch14.addConstraint(Sketcher.Constraint("DistanceY", -1, 1, 0, 3, 10.0))
pocket6 = doc.addObject("PartDesign::Pocket", "Pocket005")
body2.addObject(pocket6)
pocket6.Profile = sketch14
pocket6.Length = 3
body7 = doc.addObject("PartDesign::Body", "Body006")

sketch15 = doc.addObject("Sketcher::SketchObject", "Sketch014")
body7.addObject(sketch15)
sketch15.AttachmentSupport = (doc.getObject("XY_Plane006"), [""])
sketch15.MapMode = "FlatFace"
sketch15.AttachmentOffset = App.Placement(V(0, 0, 8.8), App.Rotation())
sketch15.addGeometry(Part.LineSegment(V(27, 9, 0), V(24.1, 9, 0)), False)
sketch15.addGeometry(Part.LineSegment(V(24.1, 9, 0), V(24.1, 5, 0)), False)
sketch15.addGeometry(Part.LineSegment(V(24.1, 5, 0), V(27, 5, 0)), False)
sketch15.addGeometry(Part.LineSegment(V(27, 5, 0), V(27, 9, 0)), False)
sketch15.addConstraint(Sketcher.Constraint("Coincident", 0, 2, 1, 1))
sketch15.addConstraint(Sketcher.Constraint("Coincident", 1, 2, 2, 1))
sketch15.addConstraint(Sketcher.Constraint("Coincident", 2, 2, 3, 1))
sketch15.addConstraint(Sketcher.Constraint("Coincident", 3, 2, 0, 1))
sketch15.addConstraint(Sketcher.Constraint("Horizontal", 0))
sketch15.addConstraint(Sketcher.Constraint("Vertical", 1))
sketch15.addConstraint(Sketcher.Constraint("Horizontal", 2))
sketch15.addConstraint(Sketcher.Constraint("Vertical", 3))
sketch15.addConstraint(Sketcher.Constraint("DistanceX", -1, 1, 2, 2, 27.0))
sketch15.addConstraint(Sketcher.Constraint("DistanceX", 0, 2, 0, 1, 2.941349))
sketch15.addConstraint(Sketcher.Constraint("DistanceY", 1, 2, 1, 1, 3.965585))
sketch15.addConstraint(Sketcher.Constraint("DistanceY", -1, 1, 1, 2, 4.991269))
pad9 = doc.addObject("PartDesign::Pad", "Pad008")
body7.addObject(pad9)
pad9.Profile = sketch15
pad9.Length = 6.8
pad9.Reversed = True
doc.recompute()

body8 = doc.addObject("PartDesign::Body", "Body007")
body8.BaseFeature = body7
boolean5 = doc.addObject("PartDesign::Boolean", "Boolean004")
body.addObject(boolean5)
boolean5.Type = "Cut"
boolean5.addObjects([body8])
doc.recompute()

fillet = doc.addObject("PartDesign::Fillet", "Fillet")
body.addObject(fillet)
fillet.Base = (boolean5, edges_at(boolean5, [
    (23.275, -5.996, 4.25),
    (24.059, 7.457, 4.25),
    (9, -7.043, 3.25),
    (5.657, 7.457, 3.25),
    (15.25, -7.043, 0),
    (16.328, 7.457, 0),
]))
fillet.Radius = 1
doc.recompute()

boolean6 = doc.addObject("PartDesign::Boolean", "Boolean005")
body2.addObject(boolean6)
boolean6.Type = "Cut"
boolean6.addObjects([body7])
doc.recompute()

fillet2 = doc.addObject("PartDesign::Fillet", "Fillet001")
body2.addObject(fillet2)
fillet2.Base = (boolean6, edges_at(boolean6, [(14.858, 8.957, 6.5), (15.25, -8.543, 6.5)]))
fillet2.Radius = 1.5

doc.recompute()
